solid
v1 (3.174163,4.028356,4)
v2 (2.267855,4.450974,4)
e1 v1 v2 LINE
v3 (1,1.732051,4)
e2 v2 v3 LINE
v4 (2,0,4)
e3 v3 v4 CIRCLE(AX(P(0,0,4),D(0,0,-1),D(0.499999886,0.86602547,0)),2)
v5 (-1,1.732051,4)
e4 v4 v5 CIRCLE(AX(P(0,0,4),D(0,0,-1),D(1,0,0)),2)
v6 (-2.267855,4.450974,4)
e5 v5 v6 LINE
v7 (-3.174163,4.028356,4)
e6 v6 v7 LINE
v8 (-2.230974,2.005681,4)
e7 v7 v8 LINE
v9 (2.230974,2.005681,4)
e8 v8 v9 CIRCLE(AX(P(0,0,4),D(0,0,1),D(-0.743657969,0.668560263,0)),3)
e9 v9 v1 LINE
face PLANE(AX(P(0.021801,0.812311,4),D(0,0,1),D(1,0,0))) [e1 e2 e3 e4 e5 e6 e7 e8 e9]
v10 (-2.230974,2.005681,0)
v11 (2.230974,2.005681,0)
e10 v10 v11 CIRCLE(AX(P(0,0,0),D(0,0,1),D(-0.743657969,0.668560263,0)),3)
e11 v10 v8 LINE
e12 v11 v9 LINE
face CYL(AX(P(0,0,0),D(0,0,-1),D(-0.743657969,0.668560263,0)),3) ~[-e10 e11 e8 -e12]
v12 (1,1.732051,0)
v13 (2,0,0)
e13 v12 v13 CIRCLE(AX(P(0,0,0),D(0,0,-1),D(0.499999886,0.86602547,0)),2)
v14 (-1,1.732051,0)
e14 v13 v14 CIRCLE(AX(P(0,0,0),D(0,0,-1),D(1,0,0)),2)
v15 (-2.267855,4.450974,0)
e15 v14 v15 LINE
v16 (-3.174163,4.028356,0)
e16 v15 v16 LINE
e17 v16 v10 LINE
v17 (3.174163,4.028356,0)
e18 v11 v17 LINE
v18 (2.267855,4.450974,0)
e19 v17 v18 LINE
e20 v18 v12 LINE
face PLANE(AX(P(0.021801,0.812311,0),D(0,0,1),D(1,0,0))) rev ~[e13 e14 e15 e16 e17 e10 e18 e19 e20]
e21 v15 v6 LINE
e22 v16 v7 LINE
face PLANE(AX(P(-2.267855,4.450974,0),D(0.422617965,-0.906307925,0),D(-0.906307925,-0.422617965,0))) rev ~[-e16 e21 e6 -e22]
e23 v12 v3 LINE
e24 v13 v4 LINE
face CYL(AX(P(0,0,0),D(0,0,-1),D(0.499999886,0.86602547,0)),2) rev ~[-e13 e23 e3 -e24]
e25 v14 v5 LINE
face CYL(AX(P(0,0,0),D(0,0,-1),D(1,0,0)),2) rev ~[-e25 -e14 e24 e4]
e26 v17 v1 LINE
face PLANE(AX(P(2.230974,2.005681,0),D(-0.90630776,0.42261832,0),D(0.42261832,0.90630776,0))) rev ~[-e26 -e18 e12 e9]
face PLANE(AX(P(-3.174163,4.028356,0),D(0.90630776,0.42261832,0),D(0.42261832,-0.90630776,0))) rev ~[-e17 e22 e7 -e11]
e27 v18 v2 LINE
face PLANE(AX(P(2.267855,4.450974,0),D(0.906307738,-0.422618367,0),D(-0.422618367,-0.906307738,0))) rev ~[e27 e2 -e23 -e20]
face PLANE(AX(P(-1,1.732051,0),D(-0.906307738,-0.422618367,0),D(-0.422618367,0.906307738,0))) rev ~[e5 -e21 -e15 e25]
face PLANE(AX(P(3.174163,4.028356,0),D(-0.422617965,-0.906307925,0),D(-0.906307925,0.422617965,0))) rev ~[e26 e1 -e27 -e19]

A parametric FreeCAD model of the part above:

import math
import FreeCAD as App
import Part
import Sketcher
Q = App.Units.Quantity

doc = App.newDocument("Part")
params = doc.addObject("Spreadsheet::Sheet", "Params")
for row, (alias, value) in enumerate([
    ("sketch1_radius", "2 mm"),
    ("sketch1_radius2", "3 mm"),
    ("sketch1_length", "3 mm"),
    ("sketch1_length2", "1 mm"),
    ("pad1_length", "4 mm"),
], start=1):
    params.set(f"A{row}", alias)
    params.set(f"B{row}", "=" + value)
    params.setAlias(f"B{row}", alias)

body = doc.addObject("PartDesign::Body", "Body")

# Sketch on XY plane
sketch1 = doc.addObject("Sketcher::SketchObject", "Sketch")
body.addObject(sketch1)
sketch1.AttachmentSupport = (doc.XY_Plane, [""])
sketch1.MapMode = "FlatFace"
sketch1.addGeometry([
    Part.ArcOfCircle(Part.Circle(App.Vector(0, 0, 0), App.Vector(0, 0, 1), 2), math.radians(-0.000013), math.radians(60.000008)),  # 0
    Part.ArcOfCircle(Part.Circle(App.Vector(0, 0, 0), App.Vector(0, 0, 1), 2), math.radians(119.999994), math.radians(360)),  # 1
    Part.LineSegment(App.Vector(-1, 1.732051, 0), App.Vector(-2.267855, 4.450974, 0)),  # 2
    Part.LineSegment(App.Vector(-2.267855, 4.450974, 0), App.Vector(-3.174163, 4.028356, 0)),  # 3
    Part.LineSegment(App.Vector(-3.174163, 4.028356, 0), App.Vector(-2.230974, 2.005681, 0)),  # 4
    Part.ArcOfCircle(Part.Circle(App.Vector(0, 0, 0), App.Vector(0, 0, 1), 3), math.radians(138.043958), math.radians(401.956042)),  # 5
    Part.LineSegment(App.Vector(2.230974, 2.005681, 0), App.Vector(3.174163, 4.028356, 0)),  # 6
    Part.LineSegment(App.Vector(3.174163, 4.028356, 0), App.Vector(2.267855, 4.450974, 0)),  # 7
    Part.LineSegment(App.Vector(2.267855, 4.450974, 0), App.Vector(1, 1.732051, 0)),  # 8
], False)
sketch1.addConstraint([
    Sketcher.Constraint("Tangent", 0, 1, 1, 2),
    Sketcher.Constraint("Coincident", 1, 1, 2, 1),
    Sketcher.Constraint("Coincident", 2, 2, 3, 1),
    Sketcher.Constraint("Coincident", 3, 2, 4, 1),
    Sketcher.Constraint("Coincident", 4, 2, 5, 1),
    Sketcher.Constraint("Coincident", 5, 2, 6, 1),
    Sketcher.Constraint("Coincident", 6, 2, 7, 1),
    Sketcher.Constraint("Coincident", 7, 2, 8, 1),
    Sketcher.Constraint("Coincident", 8, 2, 0, 2),
    Sketcher.Constraint("Coincident", 0, 3, -1, 1),
    Sketcher.Constraint("Coincident", 5, 3, -1, 1),
    Sketcher.Constraint("Equal", 0, 1),
    Sketcher.Constraint("Symmetric", 3, 2, 6, 2, -2),
    Sketcher.Constraint("Symmetric", 2, 2, 7, 2, -2),
    Sketcher.Constraint("PointOnObject", 0, 1, -1),
    Sketcher.Constraint("Perpendicular", 2, 3),
    Sketcher.Constraint("Perpendicular", 3, 4),
    Sketcher.Constraint("Perpendicular", 6, 7),
    Sketcher.Constraint("Perpendicular", 7, 8),
    Sketcher.Constraint("Radius", 0, Q("2 mm")),
    Sketcher.Constraint("Radius", 5, Q("3 mm")),
    Sketcher.Constraint("Angle", 2, Q("115.000007 deg")),
    Sketcher.Constraint("Distance", 2, Q("3 mm")),
    Sketcher.Constraint("Distance", 3, Q("1 mm")),
    Sketcher.Constraint("DistanceX", 1, 1, -1, 1, Q("1 mm")),
])
sketch1.setExpression("Constraints[19]", "Params.sketch1_radius")
sketch1.setExpression("Constraints[20]", "Params.sketch1_radius2")
sketch1.setExpression("Constraints[22]", "Params.sketch1_length")
sketch1.setExpression("Constraints[23]", "Params.sketch1_length2")
pad1 = doc.addObject("PartDesign::Pad", "Pad")
body.addObject(pad1)
pad1.Profile = sketch1
pad1.setExpression("Length", "Params.pad1_length")

doc.recompute()
